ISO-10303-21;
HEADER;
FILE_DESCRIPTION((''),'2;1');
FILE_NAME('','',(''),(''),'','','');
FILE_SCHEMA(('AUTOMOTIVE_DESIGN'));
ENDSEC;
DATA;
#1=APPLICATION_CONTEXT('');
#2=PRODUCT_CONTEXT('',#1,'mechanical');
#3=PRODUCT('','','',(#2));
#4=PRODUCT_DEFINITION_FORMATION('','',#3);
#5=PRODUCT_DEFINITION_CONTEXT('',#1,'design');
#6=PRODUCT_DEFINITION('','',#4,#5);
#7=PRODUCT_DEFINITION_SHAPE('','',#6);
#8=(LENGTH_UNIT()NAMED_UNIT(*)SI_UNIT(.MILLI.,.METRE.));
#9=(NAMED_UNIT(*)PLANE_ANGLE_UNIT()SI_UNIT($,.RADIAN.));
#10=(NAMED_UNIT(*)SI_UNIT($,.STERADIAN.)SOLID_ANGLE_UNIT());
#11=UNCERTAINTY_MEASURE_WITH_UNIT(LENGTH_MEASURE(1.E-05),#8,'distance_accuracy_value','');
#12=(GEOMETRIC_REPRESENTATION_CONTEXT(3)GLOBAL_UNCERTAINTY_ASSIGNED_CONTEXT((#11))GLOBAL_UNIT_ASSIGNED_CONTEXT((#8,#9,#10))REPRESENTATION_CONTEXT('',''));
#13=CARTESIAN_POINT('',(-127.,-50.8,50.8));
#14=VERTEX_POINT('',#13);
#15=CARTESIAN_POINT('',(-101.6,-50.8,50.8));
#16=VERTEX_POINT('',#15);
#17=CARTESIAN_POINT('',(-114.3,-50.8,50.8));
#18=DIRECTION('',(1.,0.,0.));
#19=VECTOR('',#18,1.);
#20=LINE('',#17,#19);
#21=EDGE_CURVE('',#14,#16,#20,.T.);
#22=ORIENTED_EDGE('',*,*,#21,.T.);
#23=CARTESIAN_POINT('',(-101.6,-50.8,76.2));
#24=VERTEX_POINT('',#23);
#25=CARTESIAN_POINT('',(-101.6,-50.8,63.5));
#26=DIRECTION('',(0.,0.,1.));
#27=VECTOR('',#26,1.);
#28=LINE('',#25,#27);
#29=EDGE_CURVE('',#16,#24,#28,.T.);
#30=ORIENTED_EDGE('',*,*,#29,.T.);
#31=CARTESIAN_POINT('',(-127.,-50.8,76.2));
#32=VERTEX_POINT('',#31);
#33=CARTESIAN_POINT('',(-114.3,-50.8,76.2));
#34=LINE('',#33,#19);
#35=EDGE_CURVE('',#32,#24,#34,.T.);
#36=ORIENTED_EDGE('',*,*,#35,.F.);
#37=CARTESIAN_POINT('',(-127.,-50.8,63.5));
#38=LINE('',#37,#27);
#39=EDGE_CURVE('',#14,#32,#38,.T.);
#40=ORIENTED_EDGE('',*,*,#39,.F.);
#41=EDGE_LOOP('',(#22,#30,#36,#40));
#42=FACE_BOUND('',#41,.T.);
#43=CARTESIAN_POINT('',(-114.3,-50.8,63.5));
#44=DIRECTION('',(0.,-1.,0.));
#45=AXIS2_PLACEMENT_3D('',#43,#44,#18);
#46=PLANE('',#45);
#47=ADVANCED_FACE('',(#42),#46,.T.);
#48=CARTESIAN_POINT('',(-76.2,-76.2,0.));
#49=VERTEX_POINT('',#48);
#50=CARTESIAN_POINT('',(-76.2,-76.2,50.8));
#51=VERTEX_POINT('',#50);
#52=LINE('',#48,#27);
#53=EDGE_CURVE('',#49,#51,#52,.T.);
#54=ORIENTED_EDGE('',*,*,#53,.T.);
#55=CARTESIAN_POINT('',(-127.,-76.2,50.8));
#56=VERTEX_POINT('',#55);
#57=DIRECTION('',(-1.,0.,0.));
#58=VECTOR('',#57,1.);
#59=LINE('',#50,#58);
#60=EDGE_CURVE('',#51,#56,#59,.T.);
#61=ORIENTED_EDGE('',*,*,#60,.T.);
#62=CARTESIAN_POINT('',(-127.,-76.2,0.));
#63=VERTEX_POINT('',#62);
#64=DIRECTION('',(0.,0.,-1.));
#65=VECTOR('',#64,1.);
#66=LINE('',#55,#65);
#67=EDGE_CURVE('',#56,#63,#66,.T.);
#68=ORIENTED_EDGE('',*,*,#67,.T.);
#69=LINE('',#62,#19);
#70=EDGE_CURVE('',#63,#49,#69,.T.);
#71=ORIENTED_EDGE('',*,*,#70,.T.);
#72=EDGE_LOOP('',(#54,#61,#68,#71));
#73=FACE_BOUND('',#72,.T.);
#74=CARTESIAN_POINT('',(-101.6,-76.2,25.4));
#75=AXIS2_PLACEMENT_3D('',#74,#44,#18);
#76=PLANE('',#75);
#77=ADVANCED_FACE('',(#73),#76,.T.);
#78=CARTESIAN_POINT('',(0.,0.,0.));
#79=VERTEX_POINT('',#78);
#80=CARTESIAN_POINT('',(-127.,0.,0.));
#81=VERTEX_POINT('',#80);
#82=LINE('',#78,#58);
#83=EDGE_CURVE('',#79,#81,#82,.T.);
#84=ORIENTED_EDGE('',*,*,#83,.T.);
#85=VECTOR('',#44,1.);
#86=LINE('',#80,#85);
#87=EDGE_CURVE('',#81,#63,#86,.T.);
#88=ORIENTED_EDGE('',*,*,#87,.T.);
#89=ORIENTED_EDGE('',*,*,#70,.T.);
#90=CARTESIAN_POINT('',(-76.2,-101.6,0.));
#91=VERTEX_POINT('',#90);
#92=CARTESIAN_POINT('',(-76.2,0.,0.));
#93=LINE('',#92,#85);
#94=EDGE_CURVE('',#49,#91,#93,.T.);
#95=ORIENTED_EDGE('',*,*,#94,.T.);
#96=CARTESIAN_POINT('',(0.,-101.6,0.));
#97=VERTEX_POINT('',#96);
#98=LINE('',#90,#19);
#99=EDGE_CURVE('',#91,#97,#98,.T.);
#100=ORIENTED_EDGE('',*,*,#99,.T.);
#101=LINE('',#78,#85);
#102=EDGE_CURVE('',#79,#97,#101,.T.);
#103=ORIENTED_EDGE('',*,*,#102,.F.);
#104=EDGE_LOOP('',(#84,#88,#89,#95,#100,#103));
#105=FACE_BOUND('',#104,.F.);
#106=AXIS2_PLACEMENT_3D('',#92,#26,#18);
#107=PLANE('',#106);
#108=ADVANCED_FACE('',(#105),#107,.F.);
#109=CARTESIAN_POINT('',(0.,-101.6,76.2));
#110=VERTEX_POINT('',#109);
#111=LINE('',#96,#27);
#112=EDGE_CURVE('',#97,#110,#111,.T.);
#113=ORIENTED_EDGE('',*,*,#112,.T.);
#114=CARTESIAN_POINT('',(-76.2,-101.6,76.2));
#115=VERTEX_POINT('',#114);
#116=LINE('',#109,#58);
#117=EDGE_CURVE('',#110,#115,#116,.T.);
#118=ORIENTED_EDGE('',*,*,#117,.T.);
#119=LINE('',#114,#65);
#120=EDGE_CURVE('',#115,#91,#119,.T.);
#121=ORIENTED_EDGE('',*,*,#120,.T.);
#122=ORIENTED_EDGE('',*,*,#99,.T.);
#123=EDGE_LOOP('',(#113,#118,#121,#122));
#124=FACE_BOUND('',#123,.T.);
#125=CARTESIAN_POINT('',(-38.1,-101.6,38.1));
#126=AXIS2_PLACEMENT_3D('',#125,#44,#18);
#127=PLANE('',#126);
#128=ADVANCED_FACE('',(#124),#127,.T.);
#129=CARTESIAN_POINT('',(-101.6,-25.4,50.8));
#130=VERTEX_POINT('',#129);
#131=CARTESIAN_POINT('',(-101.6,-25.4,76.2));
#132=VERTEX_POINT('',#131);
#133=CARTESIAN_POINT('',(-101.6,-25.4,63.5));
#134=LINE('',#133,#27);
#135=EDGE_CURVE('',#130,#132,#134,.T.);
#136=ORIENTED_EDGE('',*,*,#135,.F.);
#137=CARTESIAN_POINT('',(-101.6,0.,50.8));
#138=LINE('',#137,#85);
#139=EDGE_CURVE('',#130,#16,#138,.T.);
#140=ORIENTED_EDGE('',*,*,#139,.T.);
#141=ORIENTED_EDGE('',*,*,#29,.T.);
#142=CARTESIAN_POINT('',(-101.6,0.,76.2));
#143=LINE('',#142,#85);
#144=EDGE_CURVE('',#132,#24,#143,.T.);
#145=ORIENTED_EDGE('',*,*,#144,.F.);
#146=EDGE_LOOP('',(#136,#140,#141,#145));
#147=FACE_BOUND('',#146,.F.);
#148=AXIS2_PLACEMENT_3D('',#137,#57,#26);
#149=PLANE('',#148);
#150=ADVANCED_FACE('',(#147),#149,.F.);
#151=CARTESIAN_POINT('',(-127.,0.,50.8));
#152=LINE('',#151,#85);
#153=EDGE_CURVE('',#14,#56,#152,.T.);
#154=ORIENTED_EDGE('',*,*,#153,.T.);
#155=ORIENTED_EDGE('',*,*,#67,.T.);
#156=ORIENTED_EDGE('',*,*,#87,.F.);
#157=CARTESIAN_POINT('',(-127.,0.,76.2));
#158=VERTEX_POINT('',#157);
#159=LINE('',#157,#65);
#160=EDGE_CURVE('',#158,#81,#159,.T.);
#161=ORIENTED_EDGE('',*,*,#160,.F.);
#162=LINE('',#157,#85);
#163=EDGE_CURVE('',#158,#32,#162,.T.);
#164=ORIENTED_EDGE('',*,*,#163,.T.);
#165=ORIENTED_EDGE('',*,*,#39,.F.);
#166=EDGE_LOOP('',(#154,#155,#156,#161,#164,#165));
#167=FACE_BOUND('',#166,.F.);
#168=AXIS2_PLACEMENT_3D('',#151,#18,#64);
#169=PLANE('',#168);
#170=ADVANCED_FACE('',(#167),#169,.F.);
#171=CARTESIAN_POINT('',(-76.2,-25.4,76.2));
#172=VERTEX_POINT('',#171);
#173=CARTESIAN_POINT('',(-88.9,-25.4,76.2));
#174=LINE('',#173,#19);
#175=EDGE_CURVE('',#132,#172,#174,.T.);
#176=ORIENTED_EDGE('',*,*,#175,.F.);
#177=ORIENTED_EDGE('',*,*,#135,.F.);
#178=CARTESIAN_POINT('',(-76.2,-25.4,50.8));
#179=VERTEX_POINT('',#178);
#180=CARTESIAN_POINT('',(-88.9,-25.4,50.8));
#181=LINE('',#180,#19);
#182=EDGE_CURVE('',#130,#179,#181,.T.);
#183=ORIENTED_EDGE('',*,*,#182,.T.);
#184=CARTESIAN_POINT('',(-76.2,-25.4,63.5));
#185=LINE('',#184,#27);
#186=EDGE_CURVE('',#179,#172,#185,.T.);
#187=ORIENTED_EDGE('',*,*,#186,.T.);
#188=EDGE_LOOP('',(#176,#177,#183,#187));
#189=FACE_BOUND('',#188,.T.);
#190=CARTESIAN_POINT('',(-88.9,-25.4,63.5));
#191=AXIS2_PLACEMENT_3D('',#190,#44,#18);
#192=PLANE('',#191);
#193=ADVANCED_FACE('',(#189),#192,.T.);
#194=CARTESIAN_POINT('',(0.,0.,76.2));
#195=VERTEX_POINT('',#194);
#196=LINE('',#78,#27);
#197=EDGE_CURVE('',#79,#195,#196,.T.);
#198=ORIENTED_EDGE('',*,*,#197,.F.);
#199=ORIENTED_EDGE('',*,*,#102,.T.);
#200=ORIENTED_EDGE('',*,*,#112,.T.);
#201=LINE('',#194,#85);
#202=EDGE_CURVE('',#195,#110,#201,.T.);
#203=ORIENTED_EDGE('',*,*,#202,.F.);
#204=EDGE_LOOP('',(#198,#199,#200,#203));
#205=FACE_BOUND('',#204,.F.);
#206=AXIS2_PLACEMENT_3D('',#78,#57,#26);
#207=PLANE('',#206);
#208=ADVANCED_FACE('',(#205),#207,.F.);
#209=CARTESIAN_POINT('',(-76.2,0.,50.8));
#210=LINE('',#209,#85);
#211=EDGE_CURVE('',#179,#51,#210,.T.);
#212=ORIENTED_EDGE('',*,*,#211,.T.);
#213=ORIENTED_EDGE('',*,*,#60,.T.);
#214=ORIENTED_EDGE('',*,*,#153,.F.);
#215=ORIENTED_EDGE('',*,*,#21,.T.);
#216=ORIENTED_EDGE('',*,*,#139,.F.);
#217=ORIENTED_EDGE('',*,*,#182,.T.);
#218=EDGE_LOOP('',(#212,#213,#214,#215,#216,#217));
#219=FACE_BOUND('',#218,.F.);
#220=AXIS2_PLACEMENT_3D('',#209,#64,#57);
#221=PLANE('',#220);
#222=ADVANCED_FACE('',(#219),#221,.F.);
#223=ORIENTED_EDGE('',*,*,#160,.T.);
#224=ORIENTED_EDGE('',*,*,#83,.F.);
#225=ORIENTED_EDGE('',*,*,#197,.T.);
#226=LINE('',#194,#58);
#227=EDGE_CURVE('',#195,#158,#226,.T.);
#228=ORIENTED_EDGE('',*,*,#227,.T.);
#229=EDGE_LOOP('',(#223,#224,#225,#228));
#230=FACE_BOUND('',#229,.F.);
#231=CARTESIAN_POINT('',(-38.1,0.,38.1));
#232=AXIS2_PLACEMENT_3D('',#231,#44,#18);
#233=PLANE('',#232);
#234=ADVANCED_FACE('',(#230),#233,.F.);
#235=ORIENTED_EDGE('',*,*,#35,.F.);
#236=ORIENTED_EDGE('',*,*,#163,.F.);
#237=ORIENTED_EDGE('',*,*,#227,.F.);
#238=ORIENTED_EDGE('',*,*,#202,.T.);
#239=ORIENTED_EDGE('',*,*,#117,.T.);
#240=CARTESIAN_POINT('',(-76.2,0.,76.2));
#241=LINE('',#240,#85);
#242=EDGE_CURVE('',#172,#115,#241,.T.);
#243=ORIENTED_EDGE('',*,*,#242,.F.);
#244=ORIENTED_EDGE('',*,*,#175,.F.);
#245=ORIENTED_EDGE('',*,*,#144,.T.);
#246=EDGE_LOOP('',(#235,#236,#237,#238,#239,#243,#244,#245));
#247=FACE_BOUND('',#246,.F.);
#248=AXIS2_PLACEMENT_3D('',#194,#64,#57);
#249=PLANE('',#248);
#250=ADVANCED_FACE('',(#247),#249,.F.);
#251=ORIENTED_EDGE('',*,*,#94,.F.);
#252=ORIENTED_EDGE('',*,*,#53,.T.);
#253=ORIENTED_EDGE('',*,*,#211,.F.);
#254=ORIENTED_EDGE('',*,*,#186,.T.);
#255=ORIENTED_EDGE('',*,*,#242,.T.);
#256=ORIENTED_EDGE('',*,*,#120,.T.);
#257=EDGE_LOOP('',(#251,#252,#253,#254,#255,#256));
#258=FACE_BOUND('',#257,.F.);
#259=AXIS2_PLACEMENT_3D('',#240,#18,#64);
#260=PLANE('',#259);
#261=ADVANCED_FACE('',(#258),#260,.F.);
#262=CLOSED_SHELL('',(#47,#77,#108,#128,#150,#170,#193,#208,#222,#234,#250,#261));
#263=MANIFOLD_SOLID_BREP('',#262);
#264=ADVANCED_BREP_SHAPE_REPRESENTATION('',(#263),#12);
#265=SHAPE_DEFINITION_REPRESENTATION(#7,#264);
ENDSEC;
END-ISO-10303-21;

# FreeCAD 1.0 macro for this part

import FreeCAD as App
import Part
import Sketcher
Q = App.Units.Quantity

doc = App.newDocument("Part")
body = doc.addObject("PartDesign::Body", "Body")

sketch1 = body.newObject("Sketcher::SketchObject", "Sketch")
sketch1.AttachmentSupport = (doc.getObject("XZ_Plane"), [""])
sketch1.MapMode = "FlatFace"
sketch1.addGeometry([
    Part.LineSegment(App.Vector(-102, 76, 0), App.Vector(-102, 51, 0)),
    Part.LineSegment(App.Vector(-102, 51, 0), App.Vector(-76, 51, 0)),
    Part.LineSegment(App.Vector(-76, 51, 0), App.Vector(-76, 76, 0)),
    Part.LineSegment(App.Vector(-76, 76, 0), App.Vector(-102, 76, 0)),
], False)
sketch1.addConstraint([
    Sketcher.Constraint("Coincident", 0, 2, 1, 1),
    Sketcher.Constraint("Coincident", 1, 2, 2, 1),
    Sketcher.Constraint("Coincident", 2, 2, 3, 1),
    Sketcher.Constraint("Coincident", 3, 2, 0, 1),
    Sketcher.Constraint("Vertical", 0),
    Sketcher.Constraint("Horizontal", 1),
    Sketcher.Constraint("Vertical", 2),
    Sketcher.Constraint("Horizontal", 3),
    Sketcher.Constraint("Equal", 3, 0),
    Sketcher.Constraint("DistanceX", 1, 1, 1, 2, Q("1 in")),
    Sketcher.Constraint("DistanceX", 0, 2, -1, 1, Q("4 in")),
    Sketcher.Constraint("DistanceY", -1, 1, 0, 2, Q("2 in")),
])
pad1 = body.newObject("PartDesign::Pad", "Pad")
pad1.Profile = sketch1
pad1.Length = Q("1 in")

sketch2 = body.newObject("Sketcher::SketchObject", "Sketch001")
sketch2.AttachmentSupport = (doc.getObject("XZ_Plane"), [""])
sketch2.MapMode = "FlatFace"
sketch2.addGeometry([
    Part.LineSegment(App.Vector(-127, 76, 0), App.Vector(-127, 51, 0)),
    Part.LineSegment(App.Vector(-127, 51, 0), App.Vector(-102, 51, 0)),
    Part.LineSegment(App.Vector(-102, 51, 0), App.Vector(-102, 76, 0)),
    Part.LineSegment(App.Vector(-102, 76, 0), App.Vector(-127, 76, 0)),
], False)
sketch2.addConstraint([
    Sketcher.Constraint("Coincident", 0, 2, 1, 1),
    Sketcher.Constraint("Coincident", 1, 2, 2, 1),
    Sketcher.Constraint("Coincident", 2, 2, 3, 1),
    Sketcher.Constraint("Coincident", 3, 2, 0, 1),
    Sketcher.Constraint("Vertical", 0),
    Sketcher.Constraint("Horizontal", 1),
    Sketcher.Constraint("Vertical", 2),
    Sketcher.Constraint("Horizontal", 3),
    Sketcher.Constraint("Equal", 3, 0),
    Sketcher.Constraint("DistanceX", 1, 1, 1, 2, Q("1 in")),
    Sketcher.Constraint("DistanceX", 0, 2, -1, 1, Q("5 in")),
    Sketcher.Constraint("DistanceY", -1, 1, 0, 2, Q("2 in")),
])
pad2 = body.newObject("PartDesign::Pad", "Pad001")
pad2.Profile = sketch2
pad2.Length = Q("2 in")

sketch3 = body.newObject("Sketcher::SketchObject", "Sketch002")
sketch3.AttachmentSupport = (doc.getObject("XZ_Plane"), [""])
sketch3.MapMode = "FlatFace"
sketch3.addGeometry([
    Part.LineSegment(App.Vector(-127, 51, 0), App.Vector(-127, 0, 0)),
    Part.LineSegment(App.Vector(-127, 0, 0), App.Vector(-76, 0, 0)),
    Part.LineSegment(App.Vector(-76, 0, 0), App.Vector(-76, 51, 0)),
    Part.LineSegment(App.Vector(-76, 51, 0), App.Vector(-127, 51, 0)),
], False)
sketch3.addConstraint([
    Sketcher.Constraint("Coincident", 0, 2, 1, 1),
    Sketcher.Constraint("Coincident", 1, 2, 2, 1),
    Sketcher.Constraint("Coincident", 2, 2, 3, 1),
    Sketcher.Constraint("Coincident", 3, 2, 0, 1),
    Sketcher.Constraint("Vertical", 0),
    Sketcher.Constraint("Horizontal", 1),
    Sketcher.Constraint("Vertical", 2),
    Sketcher.Constraint("Horizontal", 3),
    Sketcher.Constraint("PointOnObject", 0, 2, -1),
    Sketcher.Constraint("Equal", 3, 0),
    Sketcher.Constraint("DistanceX", 1, 1, 1, 2, Q("2 in")),
    Sketcher.Constraint("DistanceX", 0, 2, -1, 1, Q("5 in")),
])
pad3 = body.newObject("PartDesign::Pad", "Pad002")
pad3.Profile = sketch3
pad3.Length = Q("3 in")

sketch4 = body.newObject("Sketcher::SketchObject", "Sketch003")
sketch4.AttachmentSupport = (doc.getObject("XZ_Plane"), [""])
sketch4.MapMode = "FlatFace"
sketch4.addGeometry([
    Part.LineSegment(App.Vector(0, 76, 0), App.Vector(-76, 76, 0)),
    Part.LineSegment(App.Vector(-76, 76, 0), App.Vector(-76, 0, 0)),
    Part.LineSegment(App.Vector(-76, 0, 0), App.Vector(0, 0, 0)),
    Part.LineSegment(App.Vector(0, 0, 0), App.Vector(0, 76, 0)),
], False)
sketch4.addConstraint([
    Sketcher.Constraint("Coincident", 0, 2, 1, 1),
    Sketcher.Constraint("Coincident", 1, 2, 2, 1),
    Sketcher.Constraint("Coincident", 2, 2, 3, 1),
    Sketcher.Constraint("Coincident", 3, 2, 0, 1),
    Sketcher.Constraint("Horizontal", 0),
    Sketcher.Constraint("Vertical", 1),
    Sketcher.Constraint("Horizontal", 2),
    Sketcher.Constraint("Vertical", 3),
    Sketcher.Constraint("Coincident", 2, 2, -1, 1),
    Sketcher.Constraint("Equal", 2, 1),
    Sketcher.Constraint("DistanceX", 0, 2, 0, 1, Q("3 in")),
])
pad4 = body.newObject("PartDesign::Pad", "Pad003")
pad4.Profile = sketch4
pad4.Length = Q("4 in")

doc.recompute()
